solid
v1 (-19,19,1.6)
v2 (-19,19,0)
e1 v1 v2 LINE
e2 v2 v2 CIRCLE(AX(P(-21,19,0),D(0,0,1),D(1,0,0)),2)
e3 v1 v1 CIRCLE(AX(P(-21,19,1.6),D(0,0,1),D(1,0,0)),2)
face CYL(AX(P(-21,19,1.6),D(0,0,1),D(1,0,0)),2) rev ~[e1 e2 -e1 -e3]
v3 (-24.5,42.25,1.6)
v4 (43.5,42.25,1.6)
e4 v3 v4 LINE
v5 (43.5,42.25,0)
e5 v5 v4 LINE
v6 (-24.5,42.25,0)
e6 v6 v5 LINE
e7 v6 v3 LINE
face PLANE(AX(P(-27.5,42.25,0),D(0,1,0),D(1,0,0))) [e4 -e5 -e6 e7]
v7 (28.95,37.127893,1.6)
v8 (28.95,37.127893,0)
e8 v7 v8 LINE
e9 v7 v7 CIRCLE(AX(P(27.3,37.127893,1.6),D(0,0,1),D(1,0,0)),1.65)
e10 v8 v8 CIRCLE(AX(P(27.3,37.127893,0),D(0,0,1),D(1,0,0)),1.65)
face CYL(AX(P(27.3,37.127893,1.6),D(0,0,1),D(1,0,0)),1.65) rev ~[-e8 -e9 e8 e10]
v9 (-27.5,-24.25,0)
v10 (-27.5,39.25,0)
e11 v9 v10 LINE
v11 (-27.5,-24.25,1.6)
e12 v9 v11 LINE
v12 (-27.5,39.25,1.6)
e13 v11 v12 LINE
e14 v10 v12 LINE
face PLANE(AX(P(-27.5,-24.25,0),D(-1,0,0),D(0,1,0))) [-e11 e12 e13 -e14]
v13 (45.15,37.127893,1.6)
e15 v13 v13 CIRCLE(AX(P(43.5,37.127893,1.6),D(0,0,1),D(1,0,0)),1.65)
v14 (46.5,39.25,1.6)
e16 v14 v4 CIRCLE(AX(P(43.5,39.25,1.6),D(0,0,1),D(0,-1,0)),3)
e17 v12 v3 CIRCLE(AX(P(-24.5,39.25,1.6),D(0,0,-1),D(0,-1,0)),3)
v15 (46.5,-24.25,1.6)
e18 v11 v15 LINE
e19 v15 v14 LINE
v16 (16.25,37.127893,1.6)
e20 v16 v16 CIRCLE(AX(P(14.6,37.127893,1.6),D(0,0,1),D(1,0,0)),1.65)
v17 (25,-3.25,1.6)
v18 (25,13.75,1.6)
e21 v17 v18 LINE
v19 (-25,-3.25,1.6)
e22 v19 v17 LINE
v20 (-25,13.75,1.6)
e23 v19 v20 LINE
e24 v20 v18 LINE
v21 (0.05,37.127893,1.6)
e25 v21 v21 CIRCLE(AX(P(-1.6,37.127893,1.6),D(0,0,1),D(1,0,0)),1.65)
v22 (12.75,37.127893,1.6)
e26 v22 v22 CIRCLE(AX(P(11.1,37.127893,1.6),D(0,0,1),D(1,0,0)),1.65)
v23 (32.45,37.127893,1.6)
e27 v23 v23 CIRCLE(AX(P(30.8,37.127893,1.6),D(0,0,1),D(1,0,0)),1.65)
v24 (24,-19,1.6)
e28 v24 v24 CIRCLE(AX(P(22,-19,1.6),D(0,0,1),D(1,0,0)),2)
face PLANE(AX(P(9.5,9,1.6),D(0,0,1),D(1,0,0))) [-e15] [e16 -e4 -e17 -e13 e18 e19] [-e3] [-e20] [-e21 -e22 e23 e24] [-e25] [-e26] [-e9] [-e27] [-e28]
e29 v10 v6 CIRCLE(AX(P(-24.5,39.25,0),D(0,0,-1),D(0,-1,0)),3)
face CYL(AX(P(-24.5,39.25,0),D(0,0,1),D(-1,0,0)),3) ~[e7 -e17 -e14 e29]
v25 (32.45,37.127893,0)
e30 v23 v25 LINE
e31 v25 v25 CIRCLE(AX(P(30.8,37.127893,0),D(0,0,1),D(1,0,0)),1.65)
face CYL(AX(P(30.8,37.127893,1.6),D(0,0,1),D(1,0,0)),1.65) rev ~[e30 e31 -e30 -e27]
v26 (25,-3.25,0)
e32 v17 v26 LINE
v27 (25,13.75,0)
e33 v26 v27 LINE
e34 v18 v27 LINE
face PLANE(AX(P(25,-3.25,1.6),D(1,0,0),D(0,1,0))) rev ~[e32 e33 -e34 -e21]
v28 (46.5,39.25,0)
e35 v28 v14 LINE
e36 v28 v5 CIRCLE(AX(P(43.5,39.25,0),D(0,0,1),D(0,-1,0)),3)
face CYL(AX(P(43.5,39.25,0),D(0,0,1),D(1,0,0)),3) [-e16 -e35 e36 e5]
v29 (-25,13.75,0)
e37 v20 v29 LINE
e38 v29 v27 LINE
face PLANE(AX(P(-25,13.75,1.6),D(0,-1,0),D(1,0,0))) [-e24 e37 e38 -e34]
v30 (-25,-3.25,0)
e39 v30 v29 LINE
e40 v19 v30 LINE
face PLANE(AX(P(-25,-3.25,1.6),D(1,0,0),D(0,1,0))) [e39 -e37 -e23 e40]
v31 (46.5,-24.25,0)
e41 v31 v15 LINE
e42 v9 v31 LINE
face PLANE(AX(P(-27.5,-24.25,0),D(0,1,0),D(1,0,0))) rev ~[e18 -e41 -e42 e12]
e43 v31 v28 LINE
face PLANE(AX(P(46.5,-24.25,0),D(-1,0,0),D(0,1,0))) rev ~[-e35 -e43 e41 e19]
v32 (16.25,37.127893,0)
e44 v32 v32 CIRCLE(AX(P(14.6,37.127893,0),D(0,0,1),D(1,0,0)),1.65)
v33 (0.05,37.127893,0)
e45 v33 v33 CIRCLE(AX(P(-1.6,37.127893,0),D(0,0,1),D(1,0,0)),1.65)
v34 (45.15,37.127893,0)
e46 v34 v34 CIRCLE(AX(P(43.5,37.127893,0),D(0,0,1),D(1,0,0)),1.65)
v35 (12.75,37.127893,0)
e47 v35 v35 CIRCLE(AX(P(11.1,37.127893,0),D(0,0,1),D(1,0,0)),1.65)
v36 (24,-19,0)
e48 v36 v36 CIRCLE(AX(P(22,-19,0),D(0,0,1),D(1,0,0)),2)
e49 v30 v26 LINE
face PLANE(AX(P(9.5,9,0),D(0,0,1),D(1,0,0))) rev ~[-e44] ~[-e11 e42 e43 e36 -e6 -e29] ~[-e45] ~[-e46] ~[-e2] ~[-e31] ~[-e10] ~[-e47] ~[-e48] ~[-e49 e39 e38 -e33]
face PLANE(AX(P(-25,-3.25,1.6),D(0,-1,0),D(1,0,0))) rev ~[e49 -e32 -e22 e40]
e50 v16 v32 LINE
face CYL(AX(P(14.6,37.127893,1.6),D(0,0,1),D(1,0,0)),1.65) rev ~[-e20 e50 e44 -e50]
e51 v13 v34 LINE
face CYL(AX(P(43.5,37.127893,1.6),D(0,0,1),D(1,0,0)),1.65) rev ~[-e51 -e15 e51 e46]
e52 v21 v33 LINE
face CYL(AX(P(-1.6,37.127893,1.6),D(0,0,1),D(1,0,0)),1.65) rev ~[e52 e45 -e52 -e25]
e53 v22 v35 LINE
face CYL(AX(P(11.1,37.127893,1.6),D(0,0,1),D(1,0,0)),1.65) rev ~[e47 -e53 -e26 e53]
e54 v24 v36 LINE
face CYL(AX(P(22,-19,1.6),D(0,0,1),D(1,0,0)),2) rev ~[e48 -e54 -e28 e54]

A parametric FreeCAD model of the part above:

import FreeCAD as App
import Part
import Sketcher
from FreeCAD import Vector


def edges_at(feature, points):
    """Names of the edges that pass closest to the given points."""
    edges = feature.Shape.Edges
    near = lambda p: min(range(len(edges)), key=lambda i: edges[i].distToShape(Part.Vertex(*p))[0])
    return sorted({f"Edge{near(p) + 1}" for p in points})

doc = App.newDocument("Part")
body = doc.addObject("PartDesign::Body", "Body")

sketch1 = body.newObject("Sketcher::SketchObject", "Sketch")
sketch1.AttachmentSupport = (doc.getObject("XY_Plane"), [""])
sketch1.MapMode = "FlatFace"
sketch1.addGeometry([
    Part.LineSegment(Vector(-28, 42, 0), Vector(-28, -24, 0)),
    Part.LineSegment(Vector(-28, -24, 0), Vector(46, -24, 0)),
    Part.LineSegment(Vector(46, -24, 0), Vector(46, 42, 0)),
    Part.LineSegment(Vector(46, 42, 0), Vector(-28, 42, 0)),
], False)
sketch1.addConstraint([
    Sketcher.Constraint("Coincident", 0, 2, 1, 1),
    Sketcher.Constraint("Coincident", 1, 2, 2, 1),
    Sketcher.Constraint("Coincident", 2, 2, 3, 1),
    Sketcher.Constraint("Coincident", 3, 2, 0, 1),
    Sketcher.Constraint("Vertical", 0),
    Sketcher.Constraint("Horizontal", 1),
    Sketcher.Constraint("Vertical", 2),
    Sketcher.Constraint("Horizontal", 3),
    Sketcher.Constraint("DistanceX", 1, 1, 1, 2, 74.0),
    Sketcher.Constraint("DistanceY", 0, 2, 0, 1, 66.5),
    Sketcher.Constraint("DistanceX", 0, 2, -1, 1, 27.5),
    Sketcher.Constraint("DistanceY", 0, 2, -1, 1, 24.25),
])
pad1 = body.newObject("PartDesign::Pad", "Pad")
pad1.Profile = sketch1
pad1.Length = 1.6
doc.recompute()

fillet = body.newObject("PartDesign::Fillet", "Fillet")
fillet.Base = (pad1, edges_at(pad1, [(-27.5, 42.25, 0.8), (46.5, 42.25, 0.8)]))
fillet.Radius = 3

sketch2 = body.newObject("Sketcher::SketchObject", "Sketch001")
sketch2.AttachmentSupport = (doc.getObject("XY_Plane"), [""])
sketch2.MapMode = "FlatFace"
sketch2.AttachmentOffset = App.Placement(Vector(0, 0, 1.6), App.Rotation())
sketch2.addGeometry([
    Part.Circle(Vector(-21, 19, 0), Vector(0, 0, 1), 2),
    Part.Circle(Vector(22, -19, 0), Vector(0, 0, 1), 2),
    Part.LineSegment(Vector(-25, 13.8, 0), Vector(-25, -3.2, 0)),
    Part.LineSegment(Vector(-25, -3.2, 0), Vector(25, -3.2, 0)),
    Part.LineSegment(Vector(25, -3.2, 0), Vector(25, 13.8, 0)),
    Part.LineSegment(Vector(25, 13.8, 0), Vector(-25, 13.8, 0)),
    Part.Circle(Vector(-1.6, 37.1, 0), Vector(0, 0, 1), 1.6),
    Part.Circle(Vector(11.1, 37.1, 0), Vector(0, 0, 1), 1.6),
    Part.Circle(Vector(14.6, 37.1, 0), Vector(0, 0, 1), 1.6),
    Part.Circle(Vector(27.3, 37.1, 0), Vector(0, 0, 1), 1.6),
    Part.Circle(Vector(30.8, 37.1, 0), Vector(0, 0, 1), 1.6),
    Part.Circle(Vector(43.5, 37.1, 0), Vector(0, 0, 1), 1.6),
], False)
sketch2.addConstraint([
    Sketcher.Constraint("Coincident", 2, 2, 3, 1),
    Sketcher.Constraint("Coincident", 3, 2, 4, 1),
    Sketcher.Constraint("Coincident", 4, 2, 5, 1),
    Sketcher.Constraint("Coincident", 5, 2, 2, 1),
    Sketcher.Constraint("Vertical", 2),
    Sketcher.Constraint("Horizontal", 3),
    Sketcher.Constraint("Vertical", 4),
    Sketcher.Constraint("Horizontal", 5),
    Sketcher.Constraint("Equal", 0, 1),
    Sketcher.Constraint("Equal", 6, 7),
    Sketcher.Constraint("Equal", 7, 8),
    Sketcher.Constraint("Equal", 8, 9),
    Sketcher.Constraint("Equal", 9, 10),
    Sketcher.Constraint("Equal", 10, 11),
    Sketcher.Constraint("Horizontal", 6, 3, 7, 3),
    Sketcher.Constraint("Horizontal", 7, 3, 8, 3),
    Sketcher.Constraint("Horizontal", 8, 3, 9, 3),
    Sketcher.Constraint("Horizontal", 9, 3, 10, 3),
    Sketcher.Constraint("Horizontal", 10, 3, 11, 3),
    Sketcher.Constraint("Diameter", 0, 4.0),
    Sketcher.Constraint("Diameter", 6, 3.3),
    Sketcher.Constraint("DistanceX", 3, 1, 3, 2, 50.0),
    Sketcher.Constraint("DistanceY", 2, 2, 2, 1, 17.0),
    Sketcher.Constraint("DistanceX", 0, 3, -1, 1, 21.0),
    Sketcher.Constraint("DistanceY", -1, 1, 0, 3, 19.0),
    Sketcher.Constraint("DistanceX", -1, 1, 1, 3, 22.0),
    Sketcher.Constraint("DistanceY", 1, 3, -1, 1, 19.0),
    Sketcher.Constraint("DistanceX", 2, 2, -1, 1, 25.0),
    Sketcher.Constraint("DistanceX", 6, 3, -1, 1, 1.6),
    Sketcher.Constraint("DistanceX", -1, 1, 7, 3, 11.1),
    Sketcher.Constraint("DistanceX", -1, 1, 8, 3, 14.6),
    Sketcher.Constraint("DistanceX", -1, 1, 9, 3, 27.3),
    Sketcher.Constraint("DistanceX", -1, 1, 10, 3, 30.8),
    Sketcher.Constraint("DistanceX", -1, 1, 11, 3, 43.5),
    Sketcher.Constraint("DistanceY", 2, 2, -1, 1, 3.25),
    Sketcher.Constraint("DistanceY", -1, 1, 6, 3, 37.127893),
])
pocket1 = body.newObject("PartDesign::Pocket", "Pocket")
pocket1.Profile = sketch2
pocket1.Length = 25

doc.recompute()
